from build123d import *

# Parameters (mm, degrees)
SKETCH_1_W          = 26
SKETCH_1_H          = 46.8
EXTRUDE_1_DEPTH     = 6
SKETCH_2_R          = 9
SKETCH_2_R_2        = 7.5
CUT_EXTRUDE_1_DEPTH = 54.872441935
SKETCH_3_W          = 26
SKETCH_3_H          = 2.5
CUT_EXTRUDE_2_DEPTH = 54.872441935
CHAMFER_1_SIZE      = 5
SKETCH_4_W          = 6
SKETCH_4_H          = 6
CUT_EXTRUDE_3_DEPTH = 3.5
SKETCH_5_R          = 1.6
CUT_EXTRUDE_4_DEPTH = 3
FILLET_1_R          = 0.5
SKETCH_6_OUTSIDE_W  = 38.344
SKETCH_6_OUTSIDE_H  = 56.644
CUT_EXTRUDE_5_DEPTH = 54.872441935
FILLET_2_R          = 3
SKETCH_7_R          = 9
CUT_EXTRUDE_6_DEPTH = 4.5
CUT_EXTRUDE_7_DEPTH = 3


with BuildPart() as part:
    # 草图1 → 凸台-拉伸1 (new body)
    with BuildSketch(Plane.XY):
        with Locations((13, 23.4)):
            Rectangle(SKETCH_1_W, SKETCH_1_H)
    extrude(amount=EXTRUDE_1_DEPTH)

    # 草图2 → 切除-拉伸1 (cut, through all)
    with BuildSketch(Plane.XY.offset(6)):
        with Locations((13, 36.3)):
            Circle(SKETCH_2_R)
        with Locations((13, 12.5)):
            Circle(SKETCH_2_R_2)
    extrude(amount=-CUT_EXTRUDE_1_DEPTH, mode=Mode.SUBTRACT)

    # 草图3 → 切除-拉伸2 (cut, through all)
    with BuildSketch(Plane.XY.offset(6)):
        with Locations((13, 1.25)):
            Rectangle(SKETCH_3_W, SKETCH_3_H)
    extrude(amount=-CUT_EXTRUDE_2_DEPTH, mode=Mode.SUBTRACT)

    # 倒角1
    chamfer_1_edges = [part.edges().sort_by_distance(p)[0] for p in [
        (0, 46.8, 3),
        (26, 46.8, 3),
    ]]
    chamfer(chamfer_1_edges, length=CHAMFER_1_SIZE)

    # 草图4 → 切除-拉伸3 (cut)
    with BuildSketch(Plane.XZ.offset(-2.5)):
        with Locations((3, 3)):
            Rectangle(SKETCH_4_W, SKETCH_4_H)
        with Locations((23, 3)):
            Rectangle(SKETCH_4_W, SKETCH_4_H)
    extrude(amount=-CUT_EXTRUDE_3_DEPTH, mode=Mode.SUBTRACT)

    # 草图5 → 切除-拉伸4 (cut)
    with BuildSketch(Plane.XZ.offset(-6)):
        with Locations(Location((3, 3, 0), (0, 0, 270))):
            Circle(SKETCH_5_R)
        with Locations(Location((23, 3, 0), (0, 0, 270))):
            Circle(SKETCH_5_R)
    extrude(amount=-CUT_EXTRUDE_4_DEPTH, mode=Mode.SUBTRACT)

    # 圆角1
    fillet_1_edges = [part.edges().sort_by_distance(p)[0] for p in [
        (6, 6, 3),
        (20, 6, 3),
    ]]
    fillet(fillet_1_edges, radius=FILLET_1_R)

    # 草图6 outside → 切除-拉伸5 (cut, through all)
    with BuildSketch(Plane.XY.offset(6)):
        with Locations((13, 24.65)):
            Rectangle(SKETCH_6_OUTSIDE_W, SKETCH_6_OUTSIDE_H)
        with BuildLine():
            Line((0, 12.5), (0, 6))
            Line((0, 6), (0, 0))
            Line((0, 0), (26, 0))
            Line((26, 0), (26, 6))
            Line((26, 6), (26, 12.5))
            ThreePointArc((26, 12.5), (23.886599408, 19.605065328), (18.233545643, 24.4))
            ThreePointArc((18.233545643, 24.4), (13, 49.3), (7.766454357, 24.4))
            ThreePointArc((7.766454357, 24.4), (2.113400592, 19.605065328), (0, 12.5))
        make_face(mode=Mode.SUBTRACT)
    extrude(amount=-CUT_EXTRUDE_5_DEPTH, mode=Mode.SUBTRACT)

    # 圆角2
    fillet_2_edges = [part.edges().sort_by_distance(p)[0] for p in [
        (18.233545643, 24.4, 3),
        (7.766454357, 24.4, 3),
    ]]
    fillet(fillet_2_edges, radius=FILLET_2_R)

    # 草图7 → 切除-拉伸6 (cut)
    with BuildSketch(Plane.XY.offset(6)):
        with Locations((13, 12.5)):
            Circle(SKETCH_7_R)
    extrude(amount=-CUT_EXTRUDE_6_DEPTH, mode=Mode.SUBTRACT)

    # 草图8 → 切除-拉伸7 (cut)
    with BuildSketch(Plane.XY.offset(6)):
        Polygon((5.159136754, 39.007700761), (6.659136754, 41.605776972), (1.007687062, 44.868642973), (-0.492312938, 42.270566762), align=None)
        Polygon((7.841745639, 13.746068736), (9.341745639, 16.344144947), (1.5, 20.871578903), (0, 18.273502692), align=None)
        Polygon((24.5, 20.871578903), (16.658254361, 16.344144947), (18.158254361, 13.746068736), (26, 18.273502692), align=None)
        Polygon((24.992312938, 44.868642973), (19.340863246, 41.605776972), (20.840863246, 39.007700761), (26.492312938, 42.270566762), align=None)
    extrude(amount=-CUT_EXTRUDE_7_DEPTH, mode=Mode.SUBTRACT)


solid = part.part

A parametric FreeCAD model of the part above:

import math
import FreeCAD as App
import Part
import Sketcher
from FreeCAD import Vector
Q = App.Units.Quantity


def edges_at(feature, points):
    """Names of the edges that pass closest to the given points."""
    edges = feature.Shape.Edges
    near = lambda p: min(range(len(edges)), key=lambda i: edges[i].distToShape(Part.Vertex(*p))[0])
    return sorted({f"Edge{near(p) + 1}" for p in points})

doc = App.newDocument("Part")
body = doc.addObject("PartDesign::Body", "Body")

# Sketch on XY plane
sketch1 = doc.addObject("Sketcher::SketchObject", "Sketch")
body.addObject(sketch1)
sketch1.AttachmentSupport = (doc.XY_Plane, [""])
sketch1.MapMode = "FlatFace"
sketch1.addGeometry(Part.LineSegment(Vector(0, 47, 0), Vector(0, 0, 0)), False)
sketch1.addGeometry(Part.LineSegment(Vector(0, 0, 0), Vector(26, 0, 0)), False)
sketch1.addGeometry(Part.LineSegment(Vector(26, 0, 0), Vector(26, 47, 0)), False)
sketch1.addGeometry(Part.LineSegment(Vector(26, 47, 0), Vector(0, 47, 0)), False)
sketch1.addConstraint(Sketcher.Constraint("Coincident", 0, 2, 1, 1))
sketch1.addConstraint(Sketcher.Constraint("Coincident", 1, 2, 2, 1))
sketch1.addConstraint(Sketcher.Constraint("Coincident", 2, 2, 3, 1))
sketch1.addConstraint(Sketcher.Constraint("Coincident", 3, 2, 0, 1))
sketch1.addConstraint(Sketcher.Constraint("Vertical", 0))
sketch1.addConstraint(Sketcher.Constraint("Horizontal", 1))
sketch1.addConstraint(Sketcher.Constraint("Vertical", 2))
sketch1.addConstraint(Sketcher.Constraint("Horizontal", 3))
sketch1.addConstraint(Sketcher.Constraint("Coincident", 0, 2, -1, 1))
sketch1.addConstraint(Sketcher.Constraint("DistanceX", 1, 1, 1, 2, Q("26 mm")))
sketch1.addConstraint(Sketcher.Constraint("DistanceY", 0, 2, 0, 1, Q("46.8 mm")))
pad1 = doc.addObject("PartDesign::Pad", "Pad")
body.addObject(pad1)
pad1.Profile = sketch1
pad1.Length = 6

# Sketch on XY plane
sketch2 = doc.addObject("Sketcher::SketchObject", "Sketch001")
body.addObject(sketch2)
sketch2.AttachmentSupport = (doc.XY_Plane, [""])
sketch2.MapMode = "FlatFace"
sketch2.AttachmentOffset = App.Placement(Vector(0, 0, 6), App.Rotation())
sketch2.addGeometry(Part.Circle(Vector(13, 36, 0), Vector(0, 0, 1), 9), False)
sketch2.addGeometry(Part.Circle(Vector(13, 12, 0), Vector(0, 0, 1), 8), False)
sketch2.addConstraint(Sketcher.Constraint("Vertical", 0, 3, 1, 3))
sketch2.addConstraint(Sketcher.Constraint("Diameter", 0, Q("18 mm")))
sketch2.addConstraint(Sketcher.Constraint("Diameter", 1, Q("15 mm")))
sketch2.addConstraint(Sketcher.Constraint("DistanceX", -1, 1, 0, 3, Q("13 mm")))
sketch2.addConstraint(Sketcher.Constraint("DistanceY", -1, 1, 0, 3, Q("36.3 mm")))
sketch2.addConstraint(Sketcher.Constraint("DistanceY", -1, 1, 1, 3, Q("12.5 mm")))
pocket1 = doc.addObject("PartDesign::Pocket", "Pocket")
body.addObject(pocket1)
pocket1.Profile = sketch2
pocket1.Type = "ThroughAll"

# Sketch on XY plane
sketch3 = doc.addObject("Sketcher::SketchObject", "Sketch002")
body.addObject(sketch3)
sketch3.AttachmentSupport = (doc.XY_Plane, [""])
sketch3.MapMode = "FlatFace"
sketch3.AttachmentOffset = App.Placement(Vector(0, 0, 6), App.Rotation())
sketch3.addGeometry(Part.LineSegment(Vector(0, 2.5, 0), Vector(0, 0, 0)), False)
sketch3.addGeometry(Part.LineSegment(Vector(0, 0, 0), Vector(26, 0, 0)), False)
sketch3.addGeometry(Part.LineSegment(Vector(26, 0, 0), Vector(26, 2.5, 0)), False)
sketch3.addGeometry(Part.LineSegment(Vector(26, 2.5, 0), Vector(0, 2.5, 0)), False)
sketch3.addConstraint(Sketcher.Constraint("Coincident", 0, 2, 1, 1))
sketch3.addConstraint(Sketcher.Constraint("Coincident", 1, 2, 2, 1))
sketch3.addConstraint(Sketcher.Constraint("Coincident", 2, 2, 3, 1))
sketch3.addConstraint(Sketcher.Constraint("Coincident", 3, 2, 0, 1))
sketch3.addConstraint(Sketcher.Constraint("Vertical", 0))
sketch3.addConstraint(Sketcher.Constraint("Horizontal", 1))
sketch3.addConstraint(Sketcher.Constraint("Vertical", 2))
sketch3.addConstraint(Sketcher.Constraint("Horizontal", 3))
sketch3.addConstraint(Sketcher.Constraint("Coincident", 0, 2, -1, 1))
sketch3.addConstraint(Sketcher.Constraint("DistanceX", 1, 1, 1, 2, Q("26 mm")))
sketch3.addConstraint(Sketcher.Constraint("DistanceY", 0, 2, 0, 1, Q("2.5 mm")))
pocket2 = doc.addObject("PartDesign::Pocket", "Pocket001")
body.addObject(pocket2)
pocket2.Profile = sketch3
pocket2.Type = "ThroughAll"
doc.recompute()

chamfer = doc.addObject("PartDesign::Chamfer", "Chamfer")
body.addObject(chamfer)
chamfer.Base = (pocket2, edges_at(pocket2, [(0, 46.8, 3), (26, 46.8, 3)]))
chamfer.Size = 5

# Sketch on XZ plane
sketch4 = doc.addObject("Sketcher::SketchObject", "Sketch003")
body.addObject(sketch4)
sketch4.AttachmentSupport = (doc.XZ_Plane, [""])
sketch4.MapMode = "FlatFace"
sketch4.AttachmentOffset = App.Placement(Vector(0, 0, -2.5), App.Rotation())
sketch4.addGeometry(Part.LineSegment(Vector(0, 6, 0), Vector(0, 0, 0)), False)
sketch4.addGeometry(Part.LineSegment(Vector(0, 0, 0), Vector(6, 0, 0)), False)
sketch4.addGeometry(Part.LineSegment(Vector(6, 0, 0), Vector(6, 6, 0)), False)
sketch4.addGeometry(Part.LineSegment(Vector(6, 6, 0), Vector(0, 6, 0)), False)
sketch4.addGeometry(Part.LineSegment(Vector(20, 6, 0), Vector(20, 0, 0)), False)
sketch4.addGeometry(Part.LineSegment(Vector(20, 0, 0), Vector(26, 0, 0)), False)
sketch4.addGeometry(Part.LineSegment(Vector(26, 0, 0), Vector(26, 6, 0)), False)
sketch4.addGeometry(Part.LineSegment(Vector(26, 6, 0), Vector(20, 6, 0)), False)
sketch4.addConstraint(Sketcher.Constraint("Coincident", 0, 2, 1, 1))
sketch4.addConstraint(Sketcher.Constraint("Coincident", 1, 2, 2, 1))
sketch4.addConstraint(Sketcher.Constraint("Coincident", 2, 2, 3, 1))
sketch4.addConstraint(Sketcher.Constraint("Coincident", 3, 2, 0, 1))
sketch4.addConstraint(Sketcher.Constraint("Coincident", 4, 2, 5, 1))
sketch4.addConstraint(Sketcher.Constraint("Coincident", 5, 2, 6, 1))
sketch4.addConstraint(Sketcher.Constraint("Coincident", 6, 2, 7, 1))
sketch4.addConstraint(Sketcher.Constraint("Coincident", 7, 2, 4, 1))
sketch4.addConstraint(Sketcher.Constraint("Vertical", 0))
sketch4.addConstraint(Sketcher.Constraint("Horizontal", 1))
sketch4.addConstraint(Sketcher.Constraint("Vertical", 2))
sketch4.addConstraint(Sketcher.Constraint("Horizontal", 3))
sketch4.addConstraint(Sketcher.Constraint("Vertical", 4))
sketch4.addConstraint(Sketcher.Constraint("Horizontal", 5))
sketch4.addConstraint(Sketcher.Constraint("Vertical", 6))
sketch4.addConstraint(Sketcher.Constraint("Horizontal", 7))
sketch4.addConstraint(Sketcher.Constraint("Coincident", 0, 2, -1, 1))
sketch4.addConstraint(Sketcher.Constraint("PointOnObject", 4, 2, -1))
sketch4.addConstraint(Sketcher.Constraint("Horizontal", 3, 2, 6, 2))
sketch4.addConstraint(Sketcher.Constraint("Equal", 3, 5))
sketch4.addConstraint(Sketcher.Constraint("Equal", 7, 0))
sketch4.addConstraint(Sketcher.Constraint("DistanceX", 1, 1, 1, 2, Q("6 mm")))
sketch4.addConstraint(Sketcher.Constraint("DistanceX", -1, 1, 4, 2, Q("20 mm")))
pocket3 = doc.addObject("PartDesign::Pocket", "Pocket002")
body.addObject(pocket3)
pocket3.Profile = sketch4
pocket3.Length = 3.5

# Sketch on XZ plane
sketch5 = doc.addObject("Sketcher::SketchObject", "Sketch004")
body.addObject(sketch5)
sketch5.AttachmentSupport = (doc.XZ_Plane, [""])
sketch5.MapMode = "FlatFace"
sketch5.AttachmentOffset = App.Placement(Vector(0, 0, -6), App.Rotation())
sketch5.addGeometry(Part.Circle(Vector(3, 3, 0), Vector(0, 0, 1), 1.6), False)
sketch5.addGeometry(Part.Circle(Vector(23, 3, 0), Vector(0, 0, 1), 1.6), False)
sketch5.addConstraint(Sketcher.Constraint("Equal", 0, 1))
sketch5.addConstraint(Sketcher.Constraint("Horizontal", 0, 3, 1, 3))
sketch5.addConstraint(Sketcher.Constraint("Diameter", 0, Q("3.2 mm")))
sketch5.addConstraint(Sketcher.Constraint("DistanceX", -1, 1, 0, 3, Q("3 mm")))
sketch5.addConstraint(Sketcher.Constraint("DistanceY", -1, 1, 0, 3, Q("3 mm")))
sketch5.addConstraint(Sketcher.Constraint("DistanceX", -1, 1, 1, 3, Q("23 mm")))
pocket4 = doc.addObject("PartDesign::Pocket", "Pocket003")
body.addObject(pocket4)
pocket4.Profile = sketch5
pocket4.Length = 3
doc.recompute()

fillet = doc.addObject("PartDesign::Fillet", "Fillet")
body.addObject(fillet)
fillet.Base = (pocket4, edges_at(pocket4, [(6, 6, 3), (20, 6, 3)]))
fillet.Radius = 0.5

# Sketch on XY plane
sketch6 = doc.addObject("Sketcher::SketchObject", "Sketch005")
body.addObject(sketch6)
sketch6.AttachmentSupport = (doc.XY_Plane, [""])
sketch6.MapMode = "FlatFace"
sketch6.AttachmentOffset = App.Placement(Vector(0, 0, 6), App.Rotation())
sketch6.addGeometry(Part.LineSegment(Vector(-6, 53, 0), Vector(-6, -4, 0)), False)
sketch6.addGeometry(Part.LineSegment(Vector(-6, -4, 0), Vector(32, -4, 0)), False)
sketch6.addGeometry(Part.LineSegment(Vector(32, -4, 0), Vector(32, 53, 0)), False)
sketch6.addGeometry(Part.LineSegment(Vector(32, 53, 0), Vector(-6, 53, 0)), False)
sketch6.addGeometry(Part.LineSegment(Vector(0, 0, 0), Vector(0, 12, 0)), False)
sketch6.addGeometry(Part.ArcOfCircle(Part.Circle(Vector(13, 12, 0), Vector(0, 0, 1), 13), math.radians(114), math.radians(180)), False)
sketch6.addGeometry(Part.ArcOfCircle(Part.Circle(Vector(13, 36, 0), Vector(0, 0, 1), 13), math.radians(-66), math.radians(246)), False)
sketch6.addGeometry(Part.ArcOfCircle(Part.Circle(Vector(13, 12, 0), Vector(0, 0, 1), 13), math.radians(0), math.radians(66)), False)
sketch6.addGeometry(Part.LineSegment(Vector(26, 12, 0), Vector(26, 0, 0)), False)
sketch6.addGeometry(Part.LineSegment(Vector(26, 0, 0), Vector(0, 0, 0)), False)
sketch6.addConstraint(Sketcher.Constraint("Coincident", 0, 2, 1, 1))
sketch6.addConstraint(Sketcher.Constraint("Coincident", 1, 2, 2, 1))
sketch6.addConstraint(Sketcher.Constraint("Coincident", 2, 2, 3, 1))
sketch6.addConstraint(Sketcher.Constraint("Coincident", 3, 2, 0, 1))
sketch6.addConstraint(Sketcher.Constraint("Tangent", 4, 2, 5, 2))
sketch6.addConstraint(Sketcher.Constraint("Coincident", 5, 1, 6, 2))
sketch6.addConstraint(Sketcher.Constraint("Coincident", 6, 1, 7, 2))
sketch6.addConstraint(Sketcher.Constraint("Tangent", 7, 1, 8, 1))
sketch6.addConstraint(Sketcher.Constraint("Coincident", 8, 2, 9, 1))
sketch6.addConstraint(Sketcher.Constraint("Coincident", 9, 2, 4, 1))
sketch6.addConstraint(Sketcher.Constraint("Vertical", 0))
sketch6.addConstraint(Sketcher.Constraint("Horizontal", 1))
sketch6.addConstraint(Sketcher.Constraint("Vertical", 2))
sketch6.addConstraint(Sketcher.Constraint("Horizontal", 3))
sketch6.addConstraint(Sketcher.Constraint("Vertical", 4))
sketch6.addConstraint(Sketcher.Constraint("Vertical", 8))
sketch6.addConstraint(Sketcher.Constraint("Horizontal", 9))
sketch6.addConstraint(Sketcher.Constraint("Coincident", 9, 2, -1, 1))
sketch6.addConstraint(Sketcher.Constraint("Coincident", 7, 3, 5, 3))
sketch6.addConstraint(Sketcher.Constraint("Equal", 5, 6))
sketch6.addConstraint(Sketcher.Constraint("Equal", 6, 7))
sketch6.addConstraint(Sketcher.Constraint("Horizontal", 5, 1, 6, 1))
sketch6.addConstraint(Sketcher.Constraint("Radius", 5, Q("13 mm")))
sketch6.addConstraint(Sketcher.Constraint("DistanceY", 4, 1, 4, 2, Q("12.5 mm")))
sketch6.addConstraint(Sketcher.Constraint("DistanceY", -1, 1, 6, 3, Q("36.3 mm")))
sketch6.addConstraint(Sketcher.Constraint("DistanceX", 1, 1, 1, 2, Q("38.344 mm")))
sketch6.addConstraint(Sketcher.Constraint("DistanceY", 0, 2, 0, 1, Q("56.644 mm")))
sketch6.addConstraint(Sketcher.Constraint("DistanceX", 0, 2, -1, 1, Q("6.172 mm")))
sketch6.addConstraint(Sketcher.Constraint("DistanceY", 0, 2, -1, 1, Q("3.672 mm")))
pocket5 = doc.addObject("PartDesign::Pocket", "Pocket004")
body.addObject(pocket5)
pocket5.Profile = sketch6
pocket5.Type = "ThroughAll"
doc.recompute()

fillet2 = doc.addObject("PartDesign::Fillet", "Fillet001")
body.addObject(fillet2)
fillet2.Base = (pocket5, edges_at(pocket5, [(18.234, 24.4, 3), (7.766, 24.4, 3)]))
fillet2.Radius = 3

# Sketch on XY plane
sketch7 = doc.addObject("Sketcher::SketchObject", "Sketch006")
body.addObject(sketch7)
sketch7.AttachmentSupport = (doc.XY_Plane, [""])
sketch7.MapMode = "FlatFace"
sketch7.AttachmentOffset = App.Placement(Vector(0, 0, 6), App.Rotation())
sketch7.addGeometry(Part.Circle(Vector(13, 12, 0), Vector(0, 0, 1), 9), False)
sketch7.addConstraint(Sketcher.Constraint("Diameter", 0, Q("18 mm")))
sketch7.addConstraint(Sketcher.Constraint("DistanceX", -1, 1, 0, 3, Q("13 mm")))
sketch7.addConstraint(Sketcher.Constraint("DistanceY", -1, 1, 0, 3, Q("12.5 mm")))
pocket6 = doc.addObject("PartDesign::Pocket", "Pocket005")
body.addObject(pocket6)
pocket6.Profile = sketch7
pocket6.Length = 4.5

# Sketch on XY plane
sketch8 = doc.addObject("Sketcher::SketchObject", "Sketch007")
body.addObject(sketch8)
sketch8.AttachmentSupport = (doc.XY_Plane, [""])
sketch8.MapMode = "FlatFace"
sketch8.AttachmentOffset = App.Placement(Vector(0, 0, 6), App.Rotation())
sketch8.addGeometry(Part.LineSegment(Vector(5.2, 39, 0), Vector(6.7, 41.6, 0)), False)
sketch8.addGeometry(Part.LineSegment(Vector(6.7, 41.6, 0), Vector(1, 44.9, 0)), False)
sketch8.addGeometry(Part.LineSegment(Vector(1, 44.9, 0), Vector(-0.5, 42.3, 0)), False)
sketch8.addGeometry(Part.LineSegment(Vector(-0.5, 42.3, 0), Vector(5.2, 39, 0)), False)
sketch8.addGeometry(Part.LineSegment(Vector(7.8, 13.7, 0), Vector(9.3, 16.3, 0)), False)
sketch8.addGeometry(Part.LineSegment(Vector(9.3, 16.3, 0), Vector(1.5, 20.9, 0)), False)
sketch8.addGeometry(Part.LineSegment(Vector(1.5, 20.9, 0), Vector(0, 18.3, 0)), False)
sketch8.addGeometry(Part.LineSegment(Vector(0, 18.3, 0), Vector(7.8, 13.7, 0)), False)
sketch8.addGeometry(Part.LineSegment(Vector(24.5, 20.9, 0), Vector(16.7, 16.3, 0)), False)
sketch8.addGeometry(Part.LineSegment(Vector(16.7, 16.3, 0), Vector(18.2, 13.7, 0)), False)
sketch8.addGeometry(Part.LineSegment(Vector(18.2, 13.7, 0), Vector(26, 18.3, 0)), False)
sketch8.addGeometry(Part.LineSegment(Vector(26, 18.3, 0), Vector(24.5, 20.9, 0)), False)
sketch8.addGeometry(Part.LineSegment(Vector(25, 44.9, 0), Vector(19.3, 41.6, 0)), False)
sketch8.addGeometry(Part.LineSegment(Vector(19.3, 41.6, 0), Vector(20.8, 39, 0)), False)
sketch8.addGeometry(Part.LineSegment(Vector(20.8, 39, 0), Vector(26.5, 42.3, 0)), False)
sketch8.addGeometry(Part.LineSegment(Vector(26.5, 42.3, 0), Vector(25, 44.9, 0)), False)
sketch8.addConstraint(Sketcher.Constraint("Coincident", 0, 2, 1, 1))
sketch8.addConstraint(Sketcher.Constraint("Coincident", 1, 2, 2, 1))
sketch8.addConstraint(Sketcher.Constraint("Coincident", 2, 2, 3, 1))
sketch8.addConstraint(Sketcher.Constraint("Coincident", 3, 2, 0, 1))
sketch8.addConstraint(Sketcher.Constraint("Coincident", 4, 2, 5, 1))
sketch8.addConstraint(Sketcher.Constraint("Coincident", 5, 2, 6, 1))
sketch8.addConstraint(Sketcher.Constraint("Coincident", 6, 2, 7, 1))
sketch8.addConstraint(Sketcher.Constraint("Coincident", 7, 2, 4, 1))
sketch8.addConstraint(Sketcher.Constraint("Coincident", 8, 2, 9, 1))
sketch8.addConstraint(Sketcher.Constraint("Coincident", 9, 2, 10, 1))
sketch8.addConstraint(Sketcher.Constraint("Coincident", 10, 2, 11, 1))
sketch8.addConstraint(Sketcher.Constraint("Coincident", 11, 2, 8, 1))
sketch8.addConstraint(Sketcher.Constraint("Coincident", 12, 2, 13, 1))
sketch8.addConstraint(Sketcher.Constraint("Coincident", 13, 2, 14, 1))
sketch8.addConstraint(Sketcher.Constraint("Coincident", 14, 2, 15, 1))
sketch8.addConstraint(Sketcher.Constraint("Coincident", 15, 2, 12, 1))
sketch8.addConstraint(Sketcher.Constraint("PointOnObject", 6, 2, -2))
sketch8.addConstraint(Sketcher.Constraint("Perpendicular", 0, 1))
sketch8.addConstraint(Sketcher.Constraint("Perpendicular", 1, 2))
sketch8.addConstraint(Sketcher.Constraint("Perpendicular", 2, 3))
sketch8.addConstraint(Sketcher.Constraint("Perpendicular", 3, 4))
sketch8.addConstraint(Sketcher.Constraint("Perpendicular", 4, 5))
sketch8.addConstraint(Sketcher.Constraint("Perpendicular", 5, 6))
sketch8.addConstraint(Sketcher.Constraint("Perpendicular", 6, 7))
sketch8.addConstraint(Sketcher.Constraint("Perpendicular", 8, 9))
sketch8.addConstraint(Sketcher.Constraint("Perpendicular", 9, 10))
sketch8.addConstraint(Sketcher.Constraint("Perpendicular", 10, 11))
sketch8.addConstraint(Sketcher.Constraint("Perpendicular", 11, 12))
sketch8.addConstraint(Sketcher.Constraint("Perpendicular", 12, 13))
sketch8.addConstraint(Sketcher.Constraint("Perpendicular", 13, 14))
sketch8.addConstraint(Sketcher.Constraint("Perpendicular", 14, 15))
sketch8.addConstraint(Sketcher.Constraint("Horizontal", 4, 2, 8, 2))
sketch8.addConstraint(Sketcher.Constraint("Horizontal", 7, 2, 9, 2))
sketch8.addConstraint(Sketcher.Constraint("Horizontal", 6, 2, 10, 2))
sketch8.addConstraint(Sketcher.Constraint("Horizontal", 0, 2, 12, 2))
sketch8.addConstraint(Sketcher.Constraint("Horizontal", 3, 2, 13, 2))
sketch8.addConstraint(Sketcher.Constraint("Horizontal", 2, 2, 14, 2))
sketch8.addConstraint(Sketcher.Constraint("Equal", 2, 4))
sketch8.addConstraint(Sketcher.Constraint("Equal", 7, 8))
sketch8.addConstraint(Sketcher.Constraint("Angle", 0, Q("60 deg")))
sketch8.addConstraint(Sketcher.Constraint("Distance", 0, Q("3 mm")))
sketch8.addConstraint(Sketcher.Constraint("DistanceX", -1, 1, 10, 2, Q("26 mm")))
sketch8.addConstraint(Sketcher.Constraint("DistanceY", -1, 1, 3, 2, Q("39.007701 mm")))
sketch8.addConstraint(Sketcher.Constraint("DistanceY", 4, 2, 1, 2, Q("28.524498 mm")))
sketch8.addConstraint(Sketcher.Constraint("DistanceY", 5, 2, 0, 2, Q("20.734198 mm")))
sketch8.addConstraint(Sketcher.Constraint("DistanceY", -1, 1, 7, 2, Q("13.746069 mm")))
sketch8.addConstraint(Sketcher.Constraint("DistanceX", 3, 2, 4, 2, Q("4.182609 mm")))
sketch8.addConstraint(Sketcher.Constraint("DistanceX", -1, 1, 12, 2, Q("19.340863 mm")))
pocket7 = doc.addObject("PartDesign::Pocket", "Pocket006")
body.addObject(pocket7)
pocket7.Profile = sketch8
pocket7.Length = 3

doc.recompute()
